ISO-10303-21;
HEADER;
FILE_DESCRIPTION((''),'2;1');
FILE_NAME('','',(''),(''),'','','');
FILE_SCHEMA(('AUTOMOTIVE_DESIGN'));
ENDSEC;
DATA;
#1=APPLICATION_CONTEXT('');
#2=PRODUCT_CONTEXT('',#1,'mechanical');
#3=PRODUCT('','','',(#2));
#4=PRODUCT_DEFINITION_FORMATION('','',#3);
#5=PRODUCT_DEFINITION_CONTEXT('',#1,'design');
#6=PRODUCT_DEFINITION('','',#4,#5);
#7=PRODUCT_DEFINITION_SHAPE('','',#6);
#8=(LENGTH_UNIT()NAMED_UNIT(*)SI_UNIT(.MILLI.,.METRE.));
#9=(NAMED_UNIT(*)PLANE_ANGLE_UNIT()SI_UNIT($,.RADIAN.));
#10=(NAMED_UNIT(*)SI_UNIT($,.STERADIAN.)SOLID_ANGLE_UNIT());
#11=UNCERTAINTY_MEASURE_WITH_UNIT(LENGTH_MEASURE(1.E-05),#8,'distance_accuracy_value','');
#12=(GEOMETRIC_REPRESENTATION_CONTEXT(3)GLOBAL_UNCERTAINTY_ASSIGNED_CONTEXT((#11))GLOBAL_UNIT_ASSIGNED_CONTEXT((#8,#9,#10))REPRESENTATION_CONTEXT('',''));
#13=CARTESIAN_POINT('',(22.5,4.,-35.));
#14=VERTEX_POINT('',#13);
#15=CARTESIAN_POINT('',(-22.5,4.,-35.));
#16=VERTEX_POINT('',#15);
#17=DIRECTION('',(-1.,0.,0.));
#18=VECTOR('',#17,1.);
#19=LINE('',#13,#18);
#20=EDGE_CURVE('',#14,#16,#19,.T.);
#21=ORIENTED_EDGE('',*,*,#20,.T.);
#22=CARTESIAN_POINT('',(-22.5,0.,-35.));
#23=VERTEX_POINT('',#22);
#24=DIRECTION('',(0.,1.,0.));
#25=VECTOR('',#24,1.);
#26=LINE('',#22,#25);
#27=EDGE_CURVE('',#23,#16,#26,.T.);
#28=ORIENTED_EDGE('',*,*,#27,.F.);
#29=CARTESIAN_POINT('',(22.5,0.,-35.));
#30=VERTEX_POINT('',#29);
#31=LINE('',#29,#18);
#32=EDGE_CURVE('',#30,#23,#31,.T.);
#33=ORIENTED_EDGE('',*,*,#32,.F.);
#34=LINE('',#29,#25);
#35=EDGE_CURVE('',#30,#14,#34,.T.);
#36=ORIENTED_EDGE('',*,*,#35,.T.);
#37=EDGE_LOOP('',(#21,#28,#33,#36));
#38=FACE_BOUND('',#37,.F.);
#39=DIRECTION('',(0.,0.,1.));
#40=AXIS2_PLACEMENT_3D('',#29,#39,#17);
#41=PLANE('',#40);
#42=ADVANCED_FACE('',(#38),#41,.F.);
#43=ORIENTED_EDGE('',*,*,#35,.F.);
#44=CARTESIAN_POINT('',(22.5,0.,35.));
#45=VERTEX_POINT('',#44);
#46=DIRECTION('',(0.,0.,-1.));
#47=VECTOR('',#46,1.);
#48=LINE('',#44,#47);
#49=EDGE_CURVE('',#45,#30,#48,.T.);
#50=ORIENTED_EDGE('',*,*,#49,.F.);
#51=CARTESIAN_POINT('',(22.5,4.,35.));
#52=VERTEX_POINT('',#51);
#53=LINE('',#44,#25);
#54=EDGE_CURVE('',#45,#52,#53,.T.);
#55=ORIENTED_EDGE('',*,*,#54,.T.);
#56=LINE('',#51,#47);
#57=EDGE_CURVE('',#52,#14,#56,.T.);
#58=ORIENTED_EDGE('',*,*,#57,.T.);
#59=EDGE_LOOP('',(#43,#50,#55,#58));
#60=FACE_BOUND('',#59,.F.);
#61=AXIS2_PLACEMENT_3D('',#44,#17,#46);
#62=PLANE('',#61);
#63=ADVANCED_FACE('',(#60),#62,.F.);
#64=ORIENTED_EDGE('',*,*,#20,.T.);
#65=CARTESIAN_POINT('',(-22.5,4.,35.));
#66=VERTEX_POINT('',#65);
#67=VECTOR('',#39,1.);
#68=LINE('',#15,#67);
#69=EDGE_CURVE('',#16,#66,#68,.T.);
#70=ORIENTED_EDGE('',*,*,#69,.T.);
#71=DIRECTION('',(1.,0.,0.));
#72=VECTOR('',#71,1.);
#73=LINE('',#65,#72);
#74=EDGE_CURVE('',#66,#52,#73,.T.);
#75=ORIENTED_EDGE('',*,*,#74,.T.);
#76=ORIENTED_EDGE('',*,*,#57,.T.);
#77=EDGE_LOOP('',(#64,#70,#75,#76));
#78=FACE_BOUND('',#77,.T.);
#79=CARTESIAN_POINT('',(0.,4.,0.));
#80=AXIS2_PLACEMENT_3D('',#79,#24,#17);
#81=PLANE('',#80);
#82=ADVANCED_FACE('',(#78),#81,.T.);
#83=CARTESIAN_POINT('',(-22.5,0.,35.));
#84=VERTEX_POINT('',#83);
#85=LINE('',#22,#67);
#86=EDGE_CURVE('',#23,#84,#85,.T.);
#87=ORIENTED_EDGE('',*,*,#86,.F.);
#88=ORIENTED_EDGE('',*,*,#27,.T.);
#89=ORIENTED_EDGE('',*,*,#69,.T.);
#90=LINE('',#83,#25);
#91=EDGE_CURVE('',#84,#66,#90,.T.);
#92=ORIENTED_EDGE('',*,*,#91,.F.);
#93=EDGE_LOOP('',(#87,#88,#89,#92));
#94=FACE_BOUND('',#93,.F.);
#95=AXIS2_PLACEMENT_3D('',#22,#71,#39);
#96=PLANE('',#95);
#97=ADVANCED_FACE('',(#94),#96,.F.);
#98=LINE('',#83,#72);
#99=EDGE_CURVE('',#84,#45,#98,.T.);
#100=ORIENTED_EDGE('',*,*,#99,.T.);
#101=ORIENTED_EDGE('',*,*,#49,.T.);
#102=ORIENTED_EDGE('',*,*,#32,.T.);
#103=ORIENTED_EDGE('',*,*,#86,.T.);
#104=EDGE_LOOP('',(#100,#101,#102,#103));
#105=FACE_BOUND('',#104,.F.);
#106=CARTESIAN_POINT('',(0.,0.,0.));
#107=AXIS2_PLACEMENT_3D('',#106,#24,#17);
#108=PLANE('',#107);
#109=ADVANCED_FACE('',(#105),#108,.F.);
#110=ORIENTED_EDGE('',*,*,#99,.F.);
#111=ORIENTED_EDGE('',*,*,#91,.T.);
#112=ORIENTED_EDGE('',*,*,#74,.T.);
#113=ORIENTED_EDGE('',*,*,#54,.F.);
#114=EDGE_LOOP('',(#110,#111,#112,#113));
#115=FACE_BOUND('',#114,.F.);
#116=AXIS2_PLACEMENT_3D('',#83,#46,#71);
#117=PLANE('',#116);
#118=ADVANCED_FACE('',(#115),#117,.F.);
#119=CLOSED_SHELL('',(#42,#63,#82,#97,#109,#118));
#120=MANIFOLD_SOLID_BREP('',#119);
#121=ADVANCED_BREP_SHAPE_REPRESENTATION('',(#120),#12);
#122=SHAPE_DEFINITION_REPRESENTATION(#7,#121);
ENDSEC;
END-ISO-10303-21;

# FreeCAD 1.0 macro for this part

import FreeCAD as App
import Part
import Sketcher
Q = App.Units.Quantity

doc = App.newDocument("Part")
body = doc.addObject("PartDesign::Body", "Body")

sketch1 = body.newObject("Sketcher::SketchObject", "Sketch")
sketch1.AttachmentSupport = (doc.getObject("XZ_Plane"), [""])
sketch1.MapMode = "FlatFace"
sketch1.addGeometry([
    Part.LineSegment(App.Vector(-22, -35, 0), App.Vector(-22, 35, 0)),
    Part.LineSegment(App.Vector(-22, 35, 0), App.Vector(22, 35, 0)),
    Part.LineSegment(App.Vector(22, 35, 0), App.Vector(22, -35, 0)),
    Part.LineSegment(App.Vector(22, -35, 0), App.Vector(-22, -35, 0)),
], False)
sketch1.addConstraint([
    Sketcher.Constraint("Coincident", 0, 2, 1, 1),
    Sketcher.Constraint("Coincident", 1, 2, 2, 1),
    Sketcher.Constraint("Coincident", 2, 2, 3, 1),
    Sketcher.Constraint("Coincident", 3, 2, 0, 1),
    Sketcher.Constraint("Vertical", 0),
    Sketcher.Constraint("Horizontal", 1),
    Sketcher.Constraint("Vertical", 2),
    Sketcher.Constraint("Horizontal", 3),
    Sketcher.Constraint("Symmetric", 0, 2, 2, 2, -1, 1),
    Sketcher.Constraint("DistanceX", 1, 1, 1, 2, Q("45 mm")),
    Sketcher.Constraint("DistanceY", 0, 1, 0, 2, Q("70 mm")),
])
pad1 = body.newObject("PartDesign::Pad", "Pad")
pad1.Profile = sketch1
pad1.Length = 4
pad1.Reversed = True

doc.recompute()
